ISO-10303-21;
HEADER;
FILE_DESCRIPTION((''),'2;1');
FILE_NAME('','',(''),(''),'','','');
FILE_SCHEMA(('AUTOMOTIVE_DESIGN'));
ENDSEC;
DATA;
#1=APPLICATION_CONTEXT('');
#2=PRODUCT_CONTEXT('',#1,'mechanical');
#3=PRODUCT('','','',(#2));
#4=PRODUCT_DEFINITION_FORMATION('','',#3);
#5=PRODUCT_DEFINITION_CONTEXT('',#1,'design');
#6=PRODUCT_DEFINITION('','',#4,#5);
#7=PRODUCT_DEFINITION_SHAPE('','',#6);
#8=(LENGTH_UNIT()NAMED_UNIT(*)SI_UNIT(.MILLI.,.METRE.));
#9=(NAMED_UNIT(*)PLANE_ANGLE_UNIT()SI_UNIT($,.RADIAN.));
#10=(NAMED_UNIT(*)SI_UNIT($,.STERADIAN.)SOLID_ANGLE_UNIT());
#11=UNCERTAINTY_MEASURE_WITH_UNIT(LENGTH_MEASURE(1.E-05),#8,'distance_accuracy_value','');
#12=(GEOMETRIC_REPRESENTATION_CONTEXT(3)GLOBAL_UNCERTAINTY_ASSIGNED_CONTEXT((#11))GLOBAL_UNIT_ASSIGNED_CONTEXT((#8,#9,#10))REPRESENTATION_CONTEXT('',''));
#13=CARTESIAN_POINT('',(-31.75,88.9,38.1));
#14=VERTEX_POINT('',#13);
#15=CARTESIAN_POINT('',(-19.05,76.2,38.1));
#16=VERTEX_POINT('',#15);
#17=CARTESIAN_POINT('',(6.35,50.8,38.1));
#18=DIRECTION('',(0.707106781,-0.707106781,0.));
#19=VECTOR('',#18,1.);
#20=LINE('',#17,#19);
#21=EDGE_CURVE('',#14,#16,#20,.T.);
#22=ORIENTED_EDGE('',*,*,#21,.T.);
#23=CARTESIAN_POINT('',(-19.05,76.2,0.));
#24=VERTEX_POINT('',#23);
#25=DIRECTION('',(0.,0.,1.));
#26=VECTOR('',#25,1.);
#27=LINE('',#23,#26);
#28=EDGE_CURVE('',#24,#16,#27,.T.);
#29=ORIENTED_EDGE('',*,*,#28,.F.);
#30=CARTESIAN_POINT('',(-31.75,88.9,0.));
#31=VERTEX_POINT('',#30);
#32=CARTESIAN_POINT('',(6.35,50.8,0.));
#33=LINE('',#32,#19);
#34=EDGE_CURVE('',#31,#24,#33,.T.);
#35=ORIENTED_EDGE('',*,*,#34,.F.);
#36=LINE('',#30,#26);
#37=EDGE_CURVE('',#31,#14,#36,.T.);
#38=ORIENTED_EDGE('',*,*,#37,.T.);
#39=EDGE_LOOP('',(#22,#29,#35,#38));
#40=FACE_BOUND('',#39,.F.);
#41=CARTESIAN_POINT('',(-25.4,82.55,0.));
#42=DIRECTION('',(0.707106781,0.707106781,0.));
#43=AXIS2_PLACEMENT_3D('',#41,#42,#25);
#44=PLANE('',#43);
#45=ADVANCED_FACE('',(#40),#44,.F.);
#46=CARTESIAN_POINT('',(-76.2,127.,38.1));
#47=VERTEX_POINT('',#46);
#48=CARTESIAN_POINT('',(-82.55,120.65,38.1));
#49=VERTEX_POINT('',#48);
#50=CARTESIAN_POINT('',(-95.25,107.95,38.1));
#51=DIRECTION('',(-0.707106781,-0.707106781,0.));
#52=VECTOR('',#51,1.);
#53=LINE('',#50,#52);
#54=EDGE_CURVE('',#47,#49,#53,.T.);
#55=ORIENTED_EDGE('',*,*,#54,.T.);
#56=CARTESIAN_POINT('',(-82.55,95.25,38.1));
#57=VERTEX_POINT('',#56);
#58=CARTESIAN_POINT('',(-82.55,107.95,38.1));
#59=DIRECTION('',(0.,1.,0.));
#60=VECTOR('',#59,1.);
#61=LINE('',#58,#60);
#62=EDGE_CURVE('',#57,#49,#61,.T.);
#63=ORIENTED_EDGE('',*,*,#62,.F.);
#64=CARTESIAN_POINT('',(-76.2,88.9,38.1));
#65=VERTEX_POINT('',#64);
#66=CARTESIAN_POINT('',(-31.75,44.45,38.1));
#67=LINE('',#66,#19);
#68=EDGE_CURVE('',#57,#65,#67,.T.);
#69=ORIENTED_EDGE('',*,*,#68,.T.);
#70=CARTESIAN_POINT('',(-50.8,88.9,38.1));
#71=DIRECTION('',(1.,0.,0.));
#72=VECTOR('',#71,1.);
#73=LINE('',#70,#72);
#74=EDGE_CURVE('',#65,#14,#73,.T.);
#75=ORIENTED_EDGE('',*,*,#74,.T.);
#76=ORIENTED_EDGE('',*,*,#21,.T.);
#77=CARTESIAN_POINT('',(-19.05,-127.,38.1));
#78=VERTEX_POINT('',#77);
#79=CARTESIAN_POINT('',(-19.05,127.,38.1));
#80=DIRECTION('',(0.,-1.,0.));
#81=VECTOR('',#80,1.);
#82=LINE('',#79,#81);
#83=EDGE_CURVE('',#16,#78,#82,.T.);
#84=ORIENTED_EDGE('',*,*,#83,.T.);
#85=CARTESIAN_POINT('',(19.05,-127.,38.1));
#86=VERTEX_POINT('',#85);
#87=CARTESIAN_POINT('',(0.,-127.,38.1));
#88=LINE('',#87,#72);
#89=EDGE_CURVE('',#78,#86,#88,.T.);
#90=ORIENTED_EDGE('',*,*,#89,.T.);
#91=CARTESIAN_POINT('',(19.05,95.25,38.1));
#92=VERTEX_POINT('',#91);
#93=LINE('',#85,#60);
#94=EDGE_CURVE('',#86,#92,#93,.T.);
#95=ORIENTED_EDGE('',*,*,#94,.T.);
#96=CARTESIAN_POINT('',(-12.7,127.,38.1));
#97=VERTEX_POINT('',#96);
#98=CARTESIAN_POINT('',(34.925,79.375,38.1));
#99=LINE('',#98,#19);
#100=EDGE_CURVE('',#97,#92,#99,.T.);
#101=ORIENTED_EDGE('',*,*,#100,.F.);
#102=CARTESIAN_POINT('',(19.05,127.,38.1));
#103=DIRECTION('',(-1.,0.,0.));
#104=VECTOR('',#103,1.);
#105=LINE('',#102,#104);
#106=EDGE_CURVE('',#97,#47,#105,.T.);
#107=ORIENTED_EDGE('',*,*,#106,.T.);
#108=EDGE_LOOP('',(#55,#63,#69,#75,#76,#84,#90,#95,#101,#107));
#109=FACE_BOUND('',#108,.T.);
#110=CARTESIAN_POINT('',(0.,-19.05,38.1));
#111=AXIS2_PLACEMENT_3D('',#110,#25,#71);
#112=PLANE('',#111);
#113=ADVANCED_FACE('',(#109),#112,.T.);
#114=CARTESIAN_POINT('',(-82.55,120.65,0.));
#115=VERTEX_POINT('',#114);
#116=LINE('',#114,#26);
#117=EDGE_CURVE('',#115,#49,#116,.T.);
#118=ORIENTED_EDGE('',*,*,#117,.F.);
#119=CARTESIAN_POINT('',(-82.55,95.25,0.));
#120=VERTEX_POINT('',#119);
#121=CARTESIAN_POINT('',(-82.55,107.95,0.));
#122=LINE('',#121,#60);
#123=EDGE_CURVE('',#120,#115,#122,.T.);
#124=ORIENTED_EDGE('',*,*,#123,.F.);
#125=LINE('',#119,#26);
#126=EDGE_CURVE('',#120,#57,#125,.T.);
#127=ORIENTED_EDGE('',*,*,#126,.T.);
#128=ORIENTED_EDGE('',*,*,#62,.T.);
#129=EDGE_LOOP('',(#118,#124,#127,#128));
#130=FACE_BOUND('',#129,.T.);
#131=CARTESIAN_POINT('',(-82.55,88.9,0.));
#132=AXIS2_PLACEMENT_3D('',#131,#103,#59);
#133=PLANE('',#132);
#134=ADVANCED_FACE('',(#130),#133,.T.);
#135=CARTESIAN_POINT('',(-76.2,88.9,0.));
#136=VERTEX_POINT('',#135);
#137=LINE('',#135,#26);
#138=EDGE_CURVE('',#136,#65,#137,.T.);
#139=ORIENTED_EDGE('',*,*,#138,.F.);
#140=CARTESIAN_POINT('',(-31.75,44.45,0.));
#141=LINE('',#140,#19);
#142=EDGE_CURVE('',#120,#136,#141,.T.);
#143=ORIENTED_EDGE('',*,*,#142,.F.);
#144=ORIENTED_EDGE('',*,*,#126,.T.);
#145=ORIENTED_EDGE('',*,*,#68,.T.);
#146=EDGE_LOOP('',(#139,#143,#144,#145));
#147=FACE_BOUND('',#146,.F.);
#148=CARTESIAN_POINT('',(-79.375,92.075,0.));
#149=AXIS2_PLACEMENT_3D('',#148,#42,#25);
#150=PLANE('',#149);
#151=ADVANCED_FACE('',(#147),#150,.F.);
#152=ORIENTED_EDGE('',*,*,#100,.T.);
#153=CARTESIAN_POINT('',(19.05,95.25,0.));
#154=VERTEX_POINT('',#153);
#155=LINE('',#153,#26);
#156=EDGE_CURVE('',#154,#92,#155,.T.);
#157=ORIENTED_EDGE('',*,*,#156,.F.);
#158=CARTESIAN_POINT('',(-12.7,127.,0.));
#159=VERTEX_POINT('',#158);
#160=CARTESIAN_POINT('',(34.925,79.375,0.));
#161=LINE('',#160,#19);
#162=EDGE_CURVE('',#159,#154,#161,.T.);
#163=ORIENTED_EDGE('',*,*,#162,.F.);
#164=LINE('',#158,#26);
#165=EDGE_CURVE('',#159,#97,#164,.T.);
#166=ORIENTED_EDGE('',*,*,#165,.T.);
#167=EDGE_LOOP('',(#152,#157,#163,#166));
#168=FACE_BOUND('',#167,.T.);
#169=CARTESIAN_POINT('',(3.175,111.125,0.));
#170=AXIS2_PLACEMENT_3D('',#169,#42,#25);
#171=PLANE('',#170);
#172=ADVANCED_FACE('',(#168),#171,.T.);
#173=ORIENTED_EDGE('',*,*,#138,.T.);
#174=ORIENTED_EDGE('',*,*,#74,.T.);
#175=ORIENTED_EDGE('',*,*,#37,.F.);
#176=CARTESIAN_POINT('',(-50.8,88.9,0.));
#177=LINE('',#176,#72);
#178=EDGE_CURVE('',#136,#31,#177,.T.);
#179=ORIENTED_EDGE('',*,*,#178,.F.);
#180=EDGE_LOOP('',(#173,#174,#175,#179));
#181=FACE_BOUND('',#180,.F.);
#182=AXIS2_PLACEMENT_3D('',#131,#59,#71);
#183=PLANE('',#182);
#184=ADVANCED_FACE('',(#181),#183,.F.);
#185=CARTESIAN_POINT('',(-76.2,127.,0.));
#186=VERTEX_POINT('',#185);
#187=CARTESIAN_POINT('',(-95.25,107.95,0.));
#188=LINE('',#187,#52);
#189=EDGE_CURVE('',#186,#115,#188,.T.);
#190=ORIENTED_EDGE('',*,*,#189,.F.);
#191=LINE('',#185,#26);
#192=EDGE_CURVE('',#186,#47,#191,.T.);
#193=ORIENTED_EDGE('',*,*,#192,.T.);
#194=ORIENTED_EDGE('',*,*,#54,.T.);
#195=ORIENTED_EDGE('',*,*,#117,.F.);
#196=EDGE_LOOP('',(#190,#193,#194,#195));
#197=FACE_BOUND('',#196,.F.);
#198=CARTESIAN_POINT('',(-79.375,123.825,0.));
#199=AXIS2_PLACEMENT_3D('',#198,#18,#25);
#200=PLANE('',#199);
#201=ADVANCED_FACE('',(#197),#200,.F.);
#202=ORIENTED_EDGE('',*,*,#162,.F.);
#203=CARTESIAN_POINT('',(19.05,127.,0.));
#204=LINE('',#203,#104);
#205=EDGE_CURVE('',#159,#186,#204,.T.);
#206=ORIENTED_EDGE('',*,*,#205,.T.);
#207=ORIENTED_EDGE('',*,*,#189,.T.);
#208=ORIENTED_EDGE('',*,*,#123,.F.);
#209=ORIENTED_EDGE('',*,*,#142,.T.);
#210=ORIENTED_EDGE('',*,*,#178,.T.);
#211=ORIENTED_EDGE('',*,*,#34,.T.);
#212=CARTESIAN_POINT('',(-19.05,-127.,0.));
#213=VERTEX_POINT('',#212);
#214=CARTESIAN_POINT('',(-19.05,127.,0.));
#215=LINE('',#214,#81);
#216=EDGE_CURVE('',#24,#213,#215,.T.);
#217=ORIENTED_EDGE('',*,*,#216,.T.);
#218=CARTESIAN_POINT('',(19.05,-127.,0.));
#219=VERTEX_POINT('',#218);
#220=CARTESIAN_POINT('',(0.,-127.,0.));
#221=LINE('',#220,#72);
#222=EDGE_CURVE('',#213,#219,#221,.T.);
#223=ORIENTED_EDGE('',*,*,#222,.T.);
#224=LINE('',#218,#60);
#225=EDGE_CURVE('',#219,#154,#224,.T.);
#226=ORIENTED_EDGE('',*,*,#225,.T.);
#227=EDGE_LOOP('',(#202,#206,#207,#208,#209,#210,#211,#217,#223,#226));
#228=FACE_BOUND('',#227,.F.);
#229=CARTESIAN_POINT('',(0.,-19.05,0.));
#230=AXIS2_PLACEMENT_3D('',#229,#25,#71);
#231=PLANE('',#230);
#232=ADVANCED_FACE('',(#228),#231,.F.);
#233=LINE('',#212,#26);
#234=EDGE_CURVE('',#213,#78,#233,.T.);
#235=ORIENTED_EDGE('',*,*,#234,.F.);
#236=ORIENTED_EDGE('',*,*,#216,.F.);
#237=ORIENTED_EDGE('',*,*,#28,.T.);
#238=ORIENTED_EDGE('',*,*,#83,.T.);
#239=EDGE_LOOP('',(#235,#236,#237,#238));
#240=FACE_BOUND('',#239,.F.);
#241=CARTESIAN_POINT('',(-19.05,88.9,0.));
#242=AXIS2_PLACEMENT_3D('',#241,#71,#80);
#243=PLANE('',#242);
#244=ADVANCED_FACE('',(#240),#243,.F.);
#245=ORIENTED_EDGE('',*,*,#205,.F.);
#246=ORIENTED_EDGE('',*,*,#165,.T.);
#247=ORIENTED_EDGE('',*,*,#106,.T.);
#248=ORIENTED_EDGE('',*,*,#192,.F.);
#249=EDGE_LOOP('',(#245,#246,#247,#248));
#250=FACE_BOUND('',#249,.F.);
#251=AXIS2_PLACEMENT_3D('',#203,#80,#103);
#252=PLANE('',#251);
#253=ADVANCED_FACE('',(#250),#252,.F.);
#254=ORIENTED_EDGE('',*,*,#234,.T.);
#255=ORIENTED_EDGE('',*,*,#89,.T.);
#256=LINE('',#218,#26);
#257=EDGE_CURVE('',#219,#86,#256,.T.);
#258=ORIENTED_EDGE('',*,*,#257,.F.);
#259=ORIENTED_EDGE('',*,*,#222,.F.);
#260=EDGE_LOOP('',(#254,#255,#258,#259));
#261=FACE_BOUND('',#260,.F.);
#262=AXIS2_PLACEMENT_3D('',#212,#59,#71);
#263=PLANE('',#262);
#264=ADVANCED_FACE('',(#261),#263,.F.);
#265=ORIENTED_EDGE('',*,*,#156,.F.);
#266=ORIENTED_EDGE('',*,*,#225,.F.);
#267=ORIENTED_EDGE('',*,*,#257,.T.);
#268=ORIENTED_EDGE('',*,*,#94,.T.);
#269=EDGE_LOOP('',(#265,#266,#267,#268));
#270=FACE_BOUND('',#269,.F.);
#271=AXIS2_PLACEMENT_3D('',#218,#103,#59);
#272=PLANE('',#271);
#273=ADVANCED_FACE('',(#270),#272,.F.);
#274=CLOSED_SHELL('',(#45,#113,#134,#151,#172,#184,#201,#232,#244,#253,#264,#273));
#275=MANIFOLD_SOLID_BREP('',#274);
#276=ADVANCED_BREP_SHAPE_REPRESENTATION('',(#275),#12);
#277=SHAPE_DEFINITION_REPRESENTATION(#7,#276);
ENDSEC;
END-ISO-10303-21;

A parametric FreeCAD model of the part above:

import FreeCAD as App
import Part
import Sketcher

V = App.Vector
Q = App.Units.Quantity


def edges_at(feature, points):
    """Names of the edges that pass closest to the given points."""
    edges = feature.Shape.Edges
    near = lambda p: min(range(len(edges)), key=lambda i: edges[i].distToShape(Part.Vertex(*p))[0])
    return sorted({f"Edge{near(p) + 1}" for p in points})

doc = App.newDocument("Part")
body = doc.addObject("PartDesign::Body", "Body")

# Sketch on XY plane
sketch1 = body.newObject("Sketcher::SketchObject", "Sketch")
sketch1.AttachmentSupport = (doc.getObject("XY_Plane"), [""])
sketch1.MapMode = "FlatFace"
sketch1.addGeometry(Part.LineSegment(V(-19, -127, 0), V(19, -127, 0)), False)
sketch1.addGeometry(Part.LineSegment(V(19, -127, 0), V(19, 127, 0)), False)
sketch1.addGeometry(Part.LineSegment(V(19, 127, 0), V(-83, 127, 0)), False)
sketch1.addGeometry(Part.LineSegment(V(-83, 127, 0), V(-83, 89, 0)), False)
sketch1.addGeometry(Part.LineSegment(V(-83, 89, 0), V(-19, 89, 0)), False)
sketch1.addGeometry(Part.LineSegment(V(-19, 89, 0), V(-19, -127, 0)), False)
sketch1.addConstraint(Sketcher.Constraint("Coincident", 0, 2, 1, 1))
sketch1.addConstraint(Sketcher.Constraint("Coincident", 1, 2, 2, 1))
sketch1.addConstraint(Sketcher.Constraint("Coincident", 2, 2, 3, 1))
sketch1.addConstraint(Sketcher.Constraint("Coincident", 3, 2, 4, 1))
sketch1.addConstraint(Sketcher.Constraint("Coincident", 4, 2, 5, 1))
sketch1.addConstraint(Sketcher.Constraint("Coincident", 5, 2, 0, 1))
sketch1.addConstraint(Sketcher.Constraint("Horizontal", 0))
sketch1.addConstraint(Sketcher.Constraint("Vertical", 1))
sketch1.addConstraint(Sketcher.Constraint("Horizontal", 2))
sketch1.addConstraint(Sketcher.Constraint("Vertical", 3))
sketch1.addConstraint(Sketcher.Constraint("Horizontal", 4))
sketch1.addConstraint(Sketcher.Constraint("Vertical", 5))
sketch1.addConstraint(Sketcher.Constraint("Symmetric", 1, 2, 5, 2, -1, 1))
sketch1.addConstraint(Sketcher.Constraint("Equal", 0, 3))
sketch1.addConstraint(Sketcher.Constraint("DistanceX", 2, 2, 2, 1, Q("4 in")))
sketch1.addConstraint(Sketcher.Constraint("DistanceY", 1, 1, 1, 2, Q("10 in")))
sketch1.addConstraint(Sketcher.Constraint("DistanceX", 0, 1, 0, 2, Q("1.5 in")))
pad1 = body.newObject("PartDesign::Pad", "Pad")
pad1.Profile = sketch1
pad1.Length = Q("1.5 in")
doc.recompute()

chamfer = body.newObject("PartDesign::Chamfer", "Chamfer")
chamfer.Base = (pad1, edges_at(pad1, [(-19.05, 88.9, 19.05)]))
chamfer.Size = Q("0.5 in")
doc.recompute()

chamfer2 = body.newObject("PartDesign::Chamfer", "Chamfer001")
chamfer2.Base = (chamfer, edges_at(chamfer, [(19.05, 127, 19.05)]))
chamfer2.Size = Q("1.25 in")
doc.recompute()

chamfer3 = body.newObject("PartDesign::Chamfer", "Chamfer002")
chamfer3.Base = (chamfer2, edges_at(chamfer2, [(-82.55, 88.9, 19.05), (-82.55, 127, 19.05)]))
chamfer3.Size = Q("0.25 in")

doc.recompute()
